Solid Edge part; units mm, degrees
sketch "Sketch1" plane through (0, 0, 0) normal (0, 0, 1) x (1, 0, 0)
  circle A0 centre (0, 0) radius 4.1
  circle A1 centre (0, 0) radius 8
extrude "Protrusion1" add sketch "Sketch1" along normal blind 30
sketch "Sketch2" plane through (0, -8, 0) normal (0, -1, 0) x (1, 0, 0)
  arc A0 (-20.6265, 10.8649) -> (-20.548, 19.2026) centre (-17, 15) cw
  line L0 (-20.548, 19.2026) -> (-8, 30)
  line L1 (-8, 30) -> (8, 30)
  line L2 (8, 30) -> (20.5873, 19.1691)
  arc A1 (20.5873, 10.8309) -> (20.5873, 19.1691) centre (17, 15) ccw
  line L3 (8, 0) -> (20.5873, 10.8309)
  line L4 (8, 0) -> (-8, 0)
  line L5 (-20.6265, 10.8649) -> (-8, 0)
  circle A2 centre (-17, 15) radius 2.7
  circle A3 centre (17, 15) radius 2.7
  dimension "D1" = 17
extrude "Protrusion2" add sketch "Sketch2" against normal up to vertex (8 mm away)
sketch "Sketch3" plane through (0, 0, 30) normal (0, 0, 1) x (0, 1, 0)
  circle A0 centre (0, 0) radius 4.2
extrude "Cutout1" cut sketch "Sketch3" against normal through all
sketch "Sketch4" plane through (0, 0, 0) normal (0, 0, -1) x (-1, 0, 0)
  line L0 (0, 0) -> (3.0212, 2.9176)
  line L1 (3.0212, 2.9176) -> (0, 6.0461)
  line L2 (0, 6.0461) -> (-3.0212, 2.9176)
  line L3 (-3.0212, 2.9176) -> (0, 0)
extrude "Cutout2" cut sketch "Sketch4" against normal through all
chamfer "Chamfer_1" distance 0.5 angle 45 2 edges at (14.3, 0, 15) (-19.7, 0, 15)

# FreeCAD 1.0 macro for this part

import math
import FreeCAD as App
import Part
import Sketcher
from FreeCAD import Vector
Q = App.Units.Quantity


def edges_at(feature, points):
    """Names of the edges that pass closest to the given points."""
    edges = feature.Shape.Edges
    near = lambda p: min(range(len(edges)), key=lambda i: edges[i].distToShape(Part.Vertex(*p))[0])
    return sorted({f"Edge{near(p) + 1}" for p in points})


def add_polygon(sketch, points):
    """Adds a closed chain of lines whose ends are joined by coincident constraints."""
    first, n = sketch.GeometryCount, len(points)
    for a, b in zip(points, points[1:] + points[:1]):
        sketch.addGeometry(Part.LineSegment(App.Vector(*a, 0), App.Vector(*b, 0)), False)
    for i in range(n):
        sketch.addConstraint(Sketcher.Constraint("Coincident", first + i, 2, first + (i + 1) % n, 1))

doc = App.newDocument("Part")
params = doc.addObject("Spreadsheet::Sheet", "Params")
for row, (alias, value) in enumerate([
    ("sketch1_diameter", "16 mm"),
    ("sketch1_diameter2", "8.2 mm"),
    ("pad1_length", "30 mm"),
    ("sketch2_diameter", "5.4 mm"),
    ("sketch2_diameter2", "5.4 mm"),
    ("sketch2_radius", "5.5 mm"),
    ("sketch2_radius2", "5.5 mm"),
    ("sketch2_width", "16 mm"),
    ("pad2_length", "8 mm"),
    ("sketch3_diameter", "8.4 mm"),
    ("sketch4_length", "4.2 mm"),
    ("chamfer_size", "0.5 mm"),
], start=1):
    params.set(f"A{row}", alias)
    params.set(f"B{row}", "=" + value)
    params.setAlias(f"B{row}", alias)

body = doc.addObject("PartDesign::Body", "Body")

# Sketch on XY plane
sketch1 = doc.addObject("Sketcher::SketchObject", "Sketch")
body.addObject(sketch1)
sketch1.AttachmentSupport = (doc.XY_Plane, [""])
sketch1.MapMode = "FlatFace"
sketch1.addGeometry(Part.Circle(Vector(0, 0, 0), Vector(0, 0, 1), 8), False)
sketch1.addGeometry(Part.Circle(Vector(0, 0, 0), Vector(0, 0, 1), 4.1), False)
sketch1.addConstraint(Sketcher.Constraint("Coincident", 0, 3, -1, 1))
sketch1.addConstraint(Sketcher.Constraint("Coincident", 1, 3, -1, 1))
sketch1.addConstraint(Sketcher.Constraint("Diameter", 0, 16.0))
sketch1.addConstraint(Sketcher.Constraint("Diameter", 1, 8.2))
sketch1.setExpression("Constraints[2]", "Params.sketch1_diameter")
sketch1.setExpression("Constraints[3]", "Params.sketch1_diameter2")
pad1 = doc.addObject("PartDesign::Pad", "Pad")
body.addObject(pad1)
pad1.Profile = sketch1
pad1.setExpression("Length", "Params.pad1_length")

# Sketch on XZ plane
sketch2 = doc.addObject("Sketcher::SketchObject", "Sketch001")
body.addObject(sketch2)
sketch2.AttachmentSupport = (doc.XZ_Plane, [""])
sketch2.MapMode = "FlatFace"
sketch2.AttachmentOffset = App.Placement(Vector(0, 0, 8), App.Rotation())
sketch2.addGeometry(Part.ArcOfCircle(Part.Circle(Vector(-17, 15, 0), Vector(0, 0, 1), 5.50005), math.radians(130.172371), math.radians(228.749102)), False)
sketch2.addGeometry(Part.LineSegment(Vector(-20.6265, 10.8649, 0), Vector(-8, 0, 0)), False)
sketch2.addGeometry(Part.LineSegment(Vector(-8, 0, 0), Vector(8, 0, 0)), False)
sketch2.addGeometry(Part.LineSegment(Vector(8, 0, 0), Vector(20.5873, 10.8309, 0)), False)
sketch2.addGeometry(Part.ArcOfCircle(Part.Circle(Vector(17, 15, 0), Vector(0, 0, 1), 5.500011), math.radians(-49.289668), math.radians(49.289668)), False)
sketch2.addGeometry(Part.LineSegment(Vector(20.5873, 19.1691, 0), Vector(8, 30, 0)), False)
sketch2.addGeometry(Part.LineSegment(Vector(8, 30, 0), Vector(-8, 30, 0)), False)
sketch2.addGeometry(Part.LineSegment(Vector(-8, 30, 0), Vector(-20.548, 19.2026, 0)), False)
sketch2.addGeometry(Part.Circle(Vector(-17, 15, 0), Vector(0, 0, 1), 2.7), False)
sketch2.addGeometry(Part.Circle(Vector(17, 15, 0), Vector(0, 0, 1), 2.7), False)
sketch2.addConstraint(Sketcher.Constraint("Coincident", 0, 2, 1, 1))
sketch2.addConstraint(Sketcher.Constraint("Coincident", 1, 2, 2, 1))
sketch2.addConstraint(Sketcher.Constraint("Coincident", 2, 2, 3, 1))
sketch2.addConstraint(Sketcher.Constraint("Coincident", 3, 2, 4, 1))
sketch2.addConstraint(Sketcher.Constraint("Coincident", 4, 2, 5, 1))
sketch2.addConstraint(Sketcher.Constraint("Coincident", 5, 2, 6, 1))
sketch2.addConstraint(Sketcher.Constraint("Coincident", 6, 2, 7, 1))
sketch2.addConstraint(Sketcher.Constraint("Coincident", 7, 2, 0, 1))
sketch2.addConstraint(Sketcher.Constraint("Horizontal", 2))
sketch2.addConstraint(Sketcher.Constraint("Horizontal", 6))
sketch2.addConstraint(Sketcher.Constraint("Coincident", 8, 3, 0, 3))
sketch2.addConstraint(Sketcher.Constraint("Coincident", 9, 3, 4, 3))
sketch2.addConstraint(Sketcher.Constraint("PointOnObject", 1, 2, -1))
sketch2.addConstraint(Sketcher.Constraint("Diameter", 8, 5.4))
sketch2.addConstraint(Sketcher.Constraint("Diameter", 9, 5.4))
sketch2.addConstraint(Sketcher.Constraint("Radius", 0, 5.5))
sketch2.addConstraint(Sketcher.Constraint("Radius", 4, 5.5))
sketch2.addConstraint(Sketcher.Constraint("DistanceX", 2, 1, 2, 2, 16.0))
sketch2.addConstraint(Sketcher.Constraint("DistanceX", 6, 2, 6, 1, 16.0))
sketch2.addConstraint(Sketcher.Constraint("DistanceX", 0, 3, -1, 1, 17.0))
sketch2.addConstraint(Sketcher.Constraint("DistanceY", -1, 1, 0, 3, 15.0))
sketch2.addConstraint(Sketcher.Constraint("DistanceX", -1, 1, 4, 3, 17.0))
sketch2.addConstraint(Sketcher.Constraint("DistanceY", -1, 1, 4, 3, 15.0))
sketch2.addConstraint(Sketcher.Constraint("DistanceX", 1, 2, -1, 1, 8.0))
sketch2.addConstraint(Sketcher.Constraint("DistanceX", -1, 1, 5, 2, 8.0))
sketch2.addConstraint(Sketcher.Constraint("DistanceY", -1, 1, 5, 2, 30.0))
sketch2.addConstraint(Sketcher.Constraint("Distance", 7, 16.554))
sketch2.addConstraint(Sketcher.Constraint("DistanceY", -1, 1, 0, 2, 10.865))
sketch2.addConstraint(Sketcher.Constraint("DistanceY", -1, 1, 3, 2, 10.831))
sketch2.addConstraint(Sketcher.Constraint("DistanceY", -1, 1, 4, 2, 19.169))
sketch2.setExpression("Constraints[13]", "Params.sketch2_diameter")
sketch2.setExpression("Constraints[14]", "Params.sketch2_diameter2")
sketch2.setExpression("Constraints[15]", "Params.sketch2_radius")
sketch2.setExpression("Constraints[16]", "Params.sketch2_radius2")
sketch2.setExpression("Constraints[17]", "Params.sketch2_width")
pad2 = doc.addObject("PartDesign::Pad", "Pad001")
body.addObject(pad2)
pad2.Profile = sketch2
pad2.setExpression("Length", "Params.pad2_length")
pad2.Reversed = True

# Sketch on XY plane
sketch3 = doc.addObject("Sketcher::SketchObject", "Sketch002")
body.addObject(sketch3)
sketch3.AttachmentSupport = (doc.XY_Plane, [""])
sketch3.MapMode = "FlatFace"
sketch3.AttachmentOffset = App.Placement(Vector(0, 0, 30), App.Rotation())
sketch3.addGeometry(Part.Circle(Vector(0, 0, 0), Vector(0, 0, 1), 4.2), False)
sketch3.addConstraint(Sketcher.Constraint("Coincident", 0, 3, -1, 1))
sketch3.addConstraint(Sketcher.Constraint("Diameter", 0, 8.4))
sketch3.setExpression("Constraints[1]", "Params.sketch3_diameter")
pocket1 = doc.addObject("PartDesign::Pocket", "Pocket")
body.addObject(pocket1)
pocket1.Profile = sketch3
pocket1.Type = "ThroughAll"

# Sketch on XY plane
sketch4 = doc.addObject("Sketcher::SketchObject", "Sketch003")
body.addObject(sketch4)
sketch4.AttachmentSupport = (doc.XY_Plane, [""])
sketch4.MapMode = "FlatFace"
add_polygon(sketch4, [(3, 2.9), (0, 0), (-3, 2.9), (0, 6)])  # lines 0-3
sketch4.addConstraint(Sketcher.Constraint("Coincident", 0, 2, -1, 1))
sketch4.addConstraint(Sketcher.Constraint("Symmetric", 1, 2, 3, 2, -2))
sketch4.addConstraint(Sketcher.Constraint("PointOnObject", 2, 2, -2))
sketch4.addConstraint(Sketcher.Constraint("Perpendicular", 1, 2))
sketch4.addConstraint(Sketcher.Constraint("Angle", 0, Q("-135.9994 deg")))
sketch4.addConstraint(Sketcher.Constraint("Distance", 0, 4.2))
sketch4.setExpression("Constraints[9]", "Params.sketch4_length")
pocket2 = doc.addObject("PartDesign::Pocket", "Pocket001")
body.addObject(pocket2)
pocket2.Profile = sketch4
pocket2.Type = "ThroughAll"
pocket2.Reversed = True
doc.recompute()

chamfer = doc.addObject("PartDesign::Chamfer", "Chamfer")
body.addObject(chamfer)
chamfer.Base = (pocket2, edges_at(pocket2, [(14.3, 0, 15), (-19.7, 0, 15)]))
chamfer.setExpression("Size", "Params.chamfer_size")

doc.recompute()
